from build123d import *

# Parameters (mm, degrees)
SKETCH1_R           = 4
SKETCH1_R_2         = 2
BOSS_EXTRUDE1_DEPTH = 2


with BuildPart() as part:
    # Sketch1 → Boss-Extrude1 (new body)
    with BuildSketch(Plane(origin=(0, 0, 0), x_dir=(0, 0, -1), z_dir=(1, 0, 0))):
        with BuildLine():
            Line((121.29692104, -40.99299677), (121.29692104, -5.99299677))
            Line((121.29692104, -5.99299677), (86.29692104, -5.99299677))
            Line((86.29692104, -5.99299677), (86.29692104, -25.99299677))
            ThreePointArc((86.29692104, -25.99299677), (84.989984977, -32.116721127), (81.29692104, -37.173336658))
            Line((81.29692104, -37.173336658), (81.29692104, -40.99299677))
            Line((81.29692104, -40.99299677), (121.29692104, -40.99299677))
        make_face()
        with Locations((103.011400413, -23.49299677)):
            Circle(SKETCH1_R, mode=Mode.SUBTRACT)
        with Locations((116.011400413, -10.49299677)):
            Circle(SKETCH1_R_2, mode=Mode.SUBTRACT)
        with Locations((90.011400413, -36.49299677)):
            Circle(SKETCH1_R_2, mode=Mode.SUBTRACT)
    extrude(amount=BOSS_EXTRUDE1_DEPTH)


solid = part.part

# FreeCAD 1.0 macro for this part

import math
import FreeCAD as App
import Part
import Sketcher
from FreeCAD import Vector

doc = App.newDocument("Part")
body = doc.addObject("PartDesign::Body", "Body")

sketch1 = body.newObject("Sketcher::SketchObject", "Sketch")
sketch1.AttachmentSupport = (doc.getObject("YZ_Plane"), [""])
sketch1.MapMode = "FlatFace"
sketch1.addGeometry([
    Part.LineSegment(Vector(-41, -121.3, 0), Vector(-6, -121.3, 0)),
    Part.LineSegment(Vector(-6, -121.3, 0), Vector(-6, -86.3, 0)),
    Part.LineSegment(Vector(-6, -86.3, 0), Vector(-26, -86.3, 0)),
    Part.ArcOfCircle(Part.Circle(Vector(-26, -71.3, 0), Vector(0, 0, 1), 15), math.radians(-138), math.radians(-90)),
    Part.LineSegment(Vector(-37.2, -81.3, 0), Vector(-41, -81.3, 0)),
    Part.LineSegment(Vector(-41, -81.3, 0), Vector(-41, -121.3, 0)),
    Part.Circle(Vector(-36.5, -90, 0), Vector(0, 0, 1), 2),
    Part.Circle(Vector(-23.5, -103, 0), Vector(0, 0, 1), 4),
    Part.Circle(Vector(-10.5, -116, 0), Vector(0, 0, 1), 2),
], False)
sketch1.addConstraint([
    Sketcher.Constraint("Coincident", 0, 2, 1, 1),
    Sketcher.Constraint("Coincident", 1, 2, 2, 1),
    Sketcher.Constraint("Tangent", 2, 2, 3, 2),
    Sketcher.Constraint("Coincident", 3, 1, 4, 1),
    Sketcher.Constraint("Coincident", 4, 2, 5, 1),
    Sketcher.Constraint("Coincident", 5, 2, 0, 1),
    Sketcher.Constraint("Horizontal", 0),
    Sketcher.Constraint("Vertical", 1),
    Sketcher.Constraint("Horizontal", 2),
    Sketcher.Constraint("Horizontal", 4),
    Sketcher.Constraint("Vertical", 5),
    Sketcher.Constraint("Equal", 6, 8),
    Sketcher.Constraint("Equal", 0, 1),
    Sketcher.Constraint("Diameter", 6, 4.0),
    Sketcher.Constraint("Diameter", 7, 8.0),
    Sketcher.Constraint("Radius", 3, 15.0),
    Sketcher.Constraint("DistanceX", 0, 1, 0, 2, 35.0),
    Sketcher.Constraint("DistanceX", 2, 2, 2, 1, 20.0),
    Sketcher.Constraint("DistanceY", 5, 2, 5, 1, 40.0),
    Sketcher.Constraint("DistanceX", 6, 3, 7, 3, 13.0),
    Sketcher.Constraint("DistanceY", 7, 3, 6, 3, 13.0),
    Sketcher.Constraint("DistanceX", 7, 3, 8, 3, 13.0),
    Sketcher.Constraint("DistanceY", 8, 3, 7, 3, 13.0),
    Sketcher.Constraint("DistanceX", 6, 3, 3, 3, 10.5),
    Sketcher.Constraint("DistanceY", 6, 3, -1, 1, 90.0114),
    Sketcher.Constraint("DistanceY", 3, 3, -1, 1, 71.296921),
    Sketcher.Constraint("DistanceX", 3, 3, -1, 1, 25.992997),
])
pad1 = body.newObject("PartDesign::Pad", "Pad")
pad1.Profile = sketch1
pad1.Length = 2

doc.recompute()
